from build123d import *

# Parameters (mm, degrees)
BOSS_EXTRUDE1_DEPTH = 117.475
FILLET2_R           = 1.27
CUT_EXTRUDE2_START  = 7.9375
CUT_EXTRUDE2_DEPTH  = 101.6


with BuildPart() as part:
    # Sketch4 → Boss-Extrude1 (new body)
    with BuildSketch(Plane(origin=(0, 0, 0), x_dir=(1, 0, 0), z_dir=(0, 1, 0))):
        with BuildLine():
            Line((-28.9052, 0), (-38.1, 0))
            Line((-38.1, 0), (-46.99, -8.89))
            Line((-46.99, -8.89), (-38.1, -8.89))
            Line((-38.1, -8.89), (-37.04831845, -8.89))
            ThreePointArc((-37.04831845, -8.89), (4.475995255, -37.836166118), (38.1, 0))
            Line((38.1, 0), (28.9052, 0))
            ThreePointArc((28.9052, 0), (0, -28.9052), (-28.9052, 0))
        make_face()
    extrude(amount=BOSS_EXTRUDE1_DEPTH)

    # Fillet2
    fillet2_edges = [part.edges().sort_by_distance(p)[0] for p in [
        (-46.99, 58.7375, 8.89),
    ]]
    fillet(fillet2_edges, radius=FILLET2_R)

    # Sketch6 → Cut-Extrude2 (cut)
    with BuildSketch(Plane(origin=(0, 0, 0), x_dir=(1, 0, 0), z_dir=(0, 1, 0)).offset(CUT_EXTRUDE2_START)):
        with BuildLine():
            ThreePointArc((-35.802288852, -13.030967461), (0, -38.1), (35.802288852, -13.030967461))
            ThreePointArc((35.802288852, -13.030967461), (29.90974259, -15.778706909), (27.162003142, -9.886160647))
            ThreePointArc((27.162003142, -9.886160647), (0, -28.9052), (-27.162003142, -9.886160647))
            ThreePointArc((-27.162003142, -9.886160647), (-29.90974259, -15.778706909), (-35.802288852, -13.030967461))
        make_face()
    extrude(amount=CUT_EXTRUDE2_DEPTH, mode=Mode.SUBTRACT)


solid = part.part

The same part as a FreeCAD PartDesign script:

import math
import FreeCAD as App
import Part
import Sketcher
from FreeCAD import Vector
Q = App.Units.Quantity


def edges_at(feature, points):
    """Names of the edges that pass closest to the given points."""
    edges = feature.Shape.Edges
    near = lambda p: min(range(len(edges)), key=lambda i: edges[i].distToShape(Part.Vertex(*p))[0])
    return sorted({f"Edge{near(p) + 1}" for p in points})

doc = App.newDocument("Part")
body = doc.addObject("PartDesign::Body", "Body")

# Sketch on XZ plane
sketch1 = body.newObject("Sketcher::SketchObject", "Sketch")
sketch1.AttachmentSupport = (doc.getObject("XZ_Plane"), [""])
sketch1.MapMode = "FlatFace"
sketch1.addGeometry(Part.LineSegment(Vector(-29, 0, 0), Vector(-38, 0, 0)), False)
sketch1.addGeometry(Part.LineSegment(Vector(-38, 0, 0), Vector(-47, 9, 0)), False)
sketch1.addGeometry(Part.LineSegment(Vector(-47, 9, 0), Vector(-37, 9, 0)), False)
sketch1.addGeometry(Part.ArcOfCircle(Part.Circle(Vector(0, 0, 0), Vector(0, 0, 1), 38), math.radians(0), math.radians(167)), False)
sketch1.addGeometry(Part.LineSegment(Vector(38, 0, 0), Vector(29, 0, 0)), False)
sketch1.addGeometry(Part.ArcOfCircle(Part.Circle(Vector(0, 0, 0), Vector(0, 0, 1), 29), math.radians(0), math.radians(180)), False)
sketch1.addConstraint(Sketcher.Constraint("Coincident", 0, 2, 1, 1))
sketch1.addConstraint(Sketcher.Constraint("Coincident", 1, 2, 2, 1))
sketch1.addConstraint(Sketcher.Constraint("Coincident", 2, 2, 3, 2))
sketch1.addConstraint(Sketcher.Constraint("Coincident", 3, 1, 4, 1))
sketch1.addConstraint(Sketcher.Constraint("Coincident", 4, 2, 5, 1))
sketch1.addConstraint(Sketcher.Constraint("Coincident", 5, 2, 0, 1))
sketch1.addConstraint(Sketcher.Constraint("Horizontal", 0))
sketch1.addConstraint(Sketcher.Constraint("Horizontal", 2))
sketch1.addConstraint(Sketcher.Constraint("Horizontal", 4))
sketch1.addConstraint(Sketcher.Constraint("Coincident", 3, 3, -1, 1))
sketch1.addConstraint(Sketcher.Constraint("Coincident", 5, 3, -1, 1))
sketch1.addConstraint(Sketcher.Constraint("Symmetric", 0, 2, 3, 1, -1, 1))
sketch1.addConstraint(Sketcher.Constraint("PointOnObject", 0, 2, -1))
sketch1.addConstraint(Sketcher.Constraint("Radius", 3, Q("1.5 in")))
sketch1.addConstraint(Sketcher.Constraint("Angle", 1, Q("135 deg")))
sketch1.addConstraint(Sketcher.Constraint("Radius", 5, Q("1.138 in")))
sketch1.addConstraint(Sketcher.Constraint("DistanceX", 1, 2, -1, 1, Q("1.85 in")))
pad1 = body.newObject("PartDesign::Pad", "Pad")
pad1.Profile = sketch1
pad1.Length = Q("4.625 in")
pad1.Reversed = True
doc.recompute()

fillet = body.newObject("PartDesign::Fillet", "Fillet")
fillet.Base = (pad1, edges_at(pad1, [(-46.99, 58.737, 8.89)]))
fillet.Radius = Q("0.05 in")

# Sketch on XZ plane
sketch2 = body.newObject("Sketcher::SketchObject", "Sketch001")
sketch2.AttachmentSupport = (doc.getObject("XZ_Plane"), [""])
sketch2.MapMode = "FlatFace"
sketch2.AttachmentOffset = App.Placement(Vector(0, 0, -0.3125 * 25.4), App.Rotation())
sketch2.addGeometry(Part.ArcOfCircle(Part.Circle(Vector(0, 0, 0), Vector(0, 0, 1), 38.1), math.radians(20), math.radians(160)), False)
sketch2.addGeometry(Part.ArcOfCircle(Part.Circle(Vector(31.5, 11.5, 0), Vector(0, 0, 1), 4.6), math.radians(20), math.radians(200)), False)
sketch2.addGeometry(Part.ArcOfCircle(Part.Circle(Vector(0, 0, 0), Vector(0, 0, 1), 28.9), math.radians(20), math.radians(160)), False)
sketch2.addGeometry(Part.ArcOfCircle(Part.Circle(Vector(-31.5, 11.5, 0), Vector(0, 0, 1), 4.6), math.radians(-20), math.radians(160)), False)
sketch2.addConstraint(Sketcher.Constraint("Tangent", 0, 1, 1, 1))
sketch2.addConstraint(Sketcher.Constraint("Tangent", 1, 2, 2, 1))
sketch2.addConstraint(Sketcher.Constraint("Tangent", 2, 2, 3, 1))
sketch2.addConstraint(Sketcher.Constraint("Tangent", 3, 2, 0, 2))
sketch2.addConstraint(Sketcher.Constraint("Coincident", 0, 3, -1, 1))
sketch2.addConstraint(Sketcher.Constraint("Coincident", 2, 3, -1, 1))
sketch2.addConstraint(Sketcher.Constraint("Horizontal", 1, 3, 3, 3))
sketch2.addConstraint(Sketcher.Constraint("Radius", 0, Q("1.5 in")))
sketch2.addConstraint(Sketcher.Constraint("Radius", 1, Q("0.181 in")))
sketch2.addConstraint(Sketcher.Constraint("DistanceX", -1, 1, 0, 1, 35.802289))
pocket1 = body.newObject("PartDesign::Pocket", "Pocket")
pocket1.Profile = sketch2
pocket1.Length = Q("4 in")

doc.recompute()
